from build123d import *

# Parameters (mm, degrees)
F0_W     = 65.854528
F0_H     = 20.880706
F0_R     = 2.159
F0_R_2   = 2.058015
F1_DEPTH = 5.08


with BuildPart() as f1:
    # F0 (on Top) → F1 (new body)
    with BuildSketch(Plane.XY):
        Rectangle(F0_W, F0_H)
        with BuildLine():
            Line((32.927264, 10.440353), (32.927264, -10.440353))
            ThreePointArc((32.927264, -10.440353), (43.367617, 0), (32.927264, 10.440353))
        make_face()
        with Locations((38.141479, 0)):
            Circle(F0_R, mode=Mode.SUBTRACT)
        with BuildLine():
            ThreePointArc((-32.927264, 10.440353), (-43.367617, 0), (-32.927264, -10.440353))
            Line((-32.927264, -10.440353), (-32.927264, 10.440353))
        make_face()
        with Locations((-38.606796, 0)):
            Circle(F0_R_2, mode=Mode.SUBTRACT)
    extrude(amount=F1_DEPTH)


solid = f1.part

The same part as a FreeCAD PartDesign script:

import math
import FreeCAD as App
import Part
import Sketcher
Q = App.Units.Quantity

doc = App.newDocument("Part")
body = doc.addObject("PartDesign::Body", "Body")

# Sketch on XY plane
sketch1 = body.newObject("Sketcher::SketchObject", "Sketch")
sketch1.AttachmentSupport = (doc.getObject("XY_Plane"), [""])
sketch1.MapMode = "FlatFace"
sketch1.addGeometry(Part.LineSegment(App.Vector(-32.9, -10.4, 0), App.Vector(32.9, -10.4, 0)), False)
sketch1.addGeometry(Part.ArcOfCircle(Part.Circle(App.Vector(32.9, 0, 0), App.Vector(0, 0, 1), 10.4), math.radians(-90), math.radians(90)), False)
sketch1.addGeometry(Part.LineSegment(App.Vector(32.9, 10.4, 0), App.Vector(-32.9, 10.4, 0)), False)
sketch1.addGeometry(Part.ArcOfCircle(Part.Circle(App.Vector(-32.9, 0, 0), App.Vector(0, 0, 1), 10.4), math.radians(90), math.radians(270)), False)
sketch1.addGeometry(Part.Circle(App.Vector(-38.6, 0, 0), App.Vector(0, 0, 1), 2.1), False)
sketch1.addGeometry(Part.Circle(App.Vector(38.1, 0, 0), App.Vector(0, 0, 1), 2.2), False)
sketch1.addConstraint(Sketcher.Constraint("Tangent", 0, 2, 1, 1))
sketch1.addConstraint(Sketcher.Constraint("Tangent", 1, 2, 2, 1))
sketch1.addConstraint(Sketcher.Constraint("Tangent", 2, 2, 3, 1))
sketch1.addConstraint(Sketcher.Constraint("Tangent", 3, 2, 0, 1))
sketch1.addConstraint(Sketcher.Constraint("Horizontal", 0))
sketch1.addConstraint(Sketcher.Constraint("Horizontal", 2))
sketch1.addConstraint(Sketcher.Constraint("Symmetric", 1, 3, 3, 3, -1, 1))
sketch1.addConstraint(Sketcher.Constraint("PointOnObject", 4, 3, -1))
sketch1.addConstraint(Sketcher.Constraint("PointOnObject", 5, 3, -1))
sketch1.addConstraint(Sketcher.Constraint("Diameter", 5, Q("0.17 in")))
sketch1.addConstraint(Sketcher.Constraint("Diameter", 4, 4.11603))
sketch1.addConstraint(Sketcher.Constraint("Radius", 1, 10.440353))
sketch1.addConstraint(Sketcher.Constraint("DistanceX", 0, 1, 0, 2, 65.854528))
sketch1.addConstraint(Sketcher.Constraint("DistanceX", -1, 1, 5, 3, 38.141479))
sketch1.addConstraint(Sketcher.Constraint("DistanceX", 4, 3, 1, 3, 71.53406))
pad1 = body.newObject("PartDesign::Pad", "Pad")
pad1.Profile = sketch1
pad1.Length = Q("0.2 in")

doc.recompute()
